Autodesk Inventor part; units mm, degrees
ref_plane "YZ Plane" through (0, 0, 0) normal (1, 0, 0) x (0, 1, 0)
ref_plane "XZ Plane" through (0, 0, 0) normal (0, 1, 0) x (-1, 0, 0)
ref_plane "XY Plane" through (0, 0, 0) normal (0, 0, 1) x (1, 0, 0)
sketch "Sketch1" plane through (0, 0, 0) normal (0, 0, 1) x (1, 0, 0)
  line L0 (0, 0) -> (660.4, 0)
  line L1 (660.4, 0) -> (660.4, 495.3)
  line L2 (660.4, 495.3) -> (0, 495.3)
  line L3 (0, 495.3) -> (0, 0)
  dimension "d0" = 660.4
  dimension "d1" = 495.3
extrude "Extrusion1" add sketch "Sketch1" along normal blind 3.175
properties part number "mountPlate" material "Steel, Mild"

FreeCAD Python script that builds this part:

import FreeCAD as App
import Part
import Sketcher
from FreeCAD import Vector
Q = App.Units.Quantity


def add_polygon(sketch, points):
    """Adds a closed chain of lines whose ends are joined by coincident constraints."""
    first, n = sketch.GeometryCount, len(points)
    for a, b in zip(points, points[1:] + points[:1]):
        sketch.addGeometry(Part.LineSegment(App.Vector(*a, 0), App.Vector(*b, 0)), False)
    for i in range(n):
        sketch.addConstraint(Sketcher.Constraint("Coincident", first + i, 2, first + (i + 1) % n, 1))

doc = App.newDocument("Part")
params = doc.addObject("Spreadsheet::Sheet", "Params")
for row, (alias, value) in enumerate([
    ("sketch1_width", "26 in"),
    ("sketch1_height", "19.5 in"),
    ("pad1_length", "0.125 in"),
], start=1):
    params.set(f"A{row}", alias)
    params.set(f"B{row}", "=" + value)
    params.setAlias(f"B{row}", alias)

body = doc.addObject("PartDesign::Body", "Body")

# Sketch on XY plane
sketch1 = body.newObject("Sketcher::SketchObject", "Sketch")
sketch1.AttachmentSupport = (doc.getObject("XY_Plane"), [""])
sketch1.MapMode = "FlatFace"
add_polygon(sketch1, [(0, 495), (0, 0), (660, 0), (660, 495)])  # lines 0-3
sketch1.addConstraint(Sketcher.Constraint("Vertical", 0))
sketch1.addConstraint(Sketcher.Constraint("Horizontal", 1))
sketch1.addConstraint(Sketcher.Constraint("Vertical", 2))
sketch1.addConstraint(Sketcher.Constraint("Horizontal", 3))
sketch1.addConstraint(Sketcher.Constraint("Coincident", 0, 2, -1, 1))
sketch1.addConstraint(Sketcher.Constraint("DistanceX", 1, 1, 1, 2, Q("26 in")))
sketch1.addConstraint(Sketcher.Constraint("DistanceY", 0, 2, 0, 1, Q("19.5 in")))
sketch1.setExpression("Constraints[9]", "Params.sketch1_width")
sketch1.setExpression("Constraints[10]", "Params.sketch1_height")
pad1 = body.newObject("PartDesign::Pad", "Pad")
pad1.Profile = sketch1
pad1.setExpression("Length", "Params.pad1_length")

doc.recompute()
